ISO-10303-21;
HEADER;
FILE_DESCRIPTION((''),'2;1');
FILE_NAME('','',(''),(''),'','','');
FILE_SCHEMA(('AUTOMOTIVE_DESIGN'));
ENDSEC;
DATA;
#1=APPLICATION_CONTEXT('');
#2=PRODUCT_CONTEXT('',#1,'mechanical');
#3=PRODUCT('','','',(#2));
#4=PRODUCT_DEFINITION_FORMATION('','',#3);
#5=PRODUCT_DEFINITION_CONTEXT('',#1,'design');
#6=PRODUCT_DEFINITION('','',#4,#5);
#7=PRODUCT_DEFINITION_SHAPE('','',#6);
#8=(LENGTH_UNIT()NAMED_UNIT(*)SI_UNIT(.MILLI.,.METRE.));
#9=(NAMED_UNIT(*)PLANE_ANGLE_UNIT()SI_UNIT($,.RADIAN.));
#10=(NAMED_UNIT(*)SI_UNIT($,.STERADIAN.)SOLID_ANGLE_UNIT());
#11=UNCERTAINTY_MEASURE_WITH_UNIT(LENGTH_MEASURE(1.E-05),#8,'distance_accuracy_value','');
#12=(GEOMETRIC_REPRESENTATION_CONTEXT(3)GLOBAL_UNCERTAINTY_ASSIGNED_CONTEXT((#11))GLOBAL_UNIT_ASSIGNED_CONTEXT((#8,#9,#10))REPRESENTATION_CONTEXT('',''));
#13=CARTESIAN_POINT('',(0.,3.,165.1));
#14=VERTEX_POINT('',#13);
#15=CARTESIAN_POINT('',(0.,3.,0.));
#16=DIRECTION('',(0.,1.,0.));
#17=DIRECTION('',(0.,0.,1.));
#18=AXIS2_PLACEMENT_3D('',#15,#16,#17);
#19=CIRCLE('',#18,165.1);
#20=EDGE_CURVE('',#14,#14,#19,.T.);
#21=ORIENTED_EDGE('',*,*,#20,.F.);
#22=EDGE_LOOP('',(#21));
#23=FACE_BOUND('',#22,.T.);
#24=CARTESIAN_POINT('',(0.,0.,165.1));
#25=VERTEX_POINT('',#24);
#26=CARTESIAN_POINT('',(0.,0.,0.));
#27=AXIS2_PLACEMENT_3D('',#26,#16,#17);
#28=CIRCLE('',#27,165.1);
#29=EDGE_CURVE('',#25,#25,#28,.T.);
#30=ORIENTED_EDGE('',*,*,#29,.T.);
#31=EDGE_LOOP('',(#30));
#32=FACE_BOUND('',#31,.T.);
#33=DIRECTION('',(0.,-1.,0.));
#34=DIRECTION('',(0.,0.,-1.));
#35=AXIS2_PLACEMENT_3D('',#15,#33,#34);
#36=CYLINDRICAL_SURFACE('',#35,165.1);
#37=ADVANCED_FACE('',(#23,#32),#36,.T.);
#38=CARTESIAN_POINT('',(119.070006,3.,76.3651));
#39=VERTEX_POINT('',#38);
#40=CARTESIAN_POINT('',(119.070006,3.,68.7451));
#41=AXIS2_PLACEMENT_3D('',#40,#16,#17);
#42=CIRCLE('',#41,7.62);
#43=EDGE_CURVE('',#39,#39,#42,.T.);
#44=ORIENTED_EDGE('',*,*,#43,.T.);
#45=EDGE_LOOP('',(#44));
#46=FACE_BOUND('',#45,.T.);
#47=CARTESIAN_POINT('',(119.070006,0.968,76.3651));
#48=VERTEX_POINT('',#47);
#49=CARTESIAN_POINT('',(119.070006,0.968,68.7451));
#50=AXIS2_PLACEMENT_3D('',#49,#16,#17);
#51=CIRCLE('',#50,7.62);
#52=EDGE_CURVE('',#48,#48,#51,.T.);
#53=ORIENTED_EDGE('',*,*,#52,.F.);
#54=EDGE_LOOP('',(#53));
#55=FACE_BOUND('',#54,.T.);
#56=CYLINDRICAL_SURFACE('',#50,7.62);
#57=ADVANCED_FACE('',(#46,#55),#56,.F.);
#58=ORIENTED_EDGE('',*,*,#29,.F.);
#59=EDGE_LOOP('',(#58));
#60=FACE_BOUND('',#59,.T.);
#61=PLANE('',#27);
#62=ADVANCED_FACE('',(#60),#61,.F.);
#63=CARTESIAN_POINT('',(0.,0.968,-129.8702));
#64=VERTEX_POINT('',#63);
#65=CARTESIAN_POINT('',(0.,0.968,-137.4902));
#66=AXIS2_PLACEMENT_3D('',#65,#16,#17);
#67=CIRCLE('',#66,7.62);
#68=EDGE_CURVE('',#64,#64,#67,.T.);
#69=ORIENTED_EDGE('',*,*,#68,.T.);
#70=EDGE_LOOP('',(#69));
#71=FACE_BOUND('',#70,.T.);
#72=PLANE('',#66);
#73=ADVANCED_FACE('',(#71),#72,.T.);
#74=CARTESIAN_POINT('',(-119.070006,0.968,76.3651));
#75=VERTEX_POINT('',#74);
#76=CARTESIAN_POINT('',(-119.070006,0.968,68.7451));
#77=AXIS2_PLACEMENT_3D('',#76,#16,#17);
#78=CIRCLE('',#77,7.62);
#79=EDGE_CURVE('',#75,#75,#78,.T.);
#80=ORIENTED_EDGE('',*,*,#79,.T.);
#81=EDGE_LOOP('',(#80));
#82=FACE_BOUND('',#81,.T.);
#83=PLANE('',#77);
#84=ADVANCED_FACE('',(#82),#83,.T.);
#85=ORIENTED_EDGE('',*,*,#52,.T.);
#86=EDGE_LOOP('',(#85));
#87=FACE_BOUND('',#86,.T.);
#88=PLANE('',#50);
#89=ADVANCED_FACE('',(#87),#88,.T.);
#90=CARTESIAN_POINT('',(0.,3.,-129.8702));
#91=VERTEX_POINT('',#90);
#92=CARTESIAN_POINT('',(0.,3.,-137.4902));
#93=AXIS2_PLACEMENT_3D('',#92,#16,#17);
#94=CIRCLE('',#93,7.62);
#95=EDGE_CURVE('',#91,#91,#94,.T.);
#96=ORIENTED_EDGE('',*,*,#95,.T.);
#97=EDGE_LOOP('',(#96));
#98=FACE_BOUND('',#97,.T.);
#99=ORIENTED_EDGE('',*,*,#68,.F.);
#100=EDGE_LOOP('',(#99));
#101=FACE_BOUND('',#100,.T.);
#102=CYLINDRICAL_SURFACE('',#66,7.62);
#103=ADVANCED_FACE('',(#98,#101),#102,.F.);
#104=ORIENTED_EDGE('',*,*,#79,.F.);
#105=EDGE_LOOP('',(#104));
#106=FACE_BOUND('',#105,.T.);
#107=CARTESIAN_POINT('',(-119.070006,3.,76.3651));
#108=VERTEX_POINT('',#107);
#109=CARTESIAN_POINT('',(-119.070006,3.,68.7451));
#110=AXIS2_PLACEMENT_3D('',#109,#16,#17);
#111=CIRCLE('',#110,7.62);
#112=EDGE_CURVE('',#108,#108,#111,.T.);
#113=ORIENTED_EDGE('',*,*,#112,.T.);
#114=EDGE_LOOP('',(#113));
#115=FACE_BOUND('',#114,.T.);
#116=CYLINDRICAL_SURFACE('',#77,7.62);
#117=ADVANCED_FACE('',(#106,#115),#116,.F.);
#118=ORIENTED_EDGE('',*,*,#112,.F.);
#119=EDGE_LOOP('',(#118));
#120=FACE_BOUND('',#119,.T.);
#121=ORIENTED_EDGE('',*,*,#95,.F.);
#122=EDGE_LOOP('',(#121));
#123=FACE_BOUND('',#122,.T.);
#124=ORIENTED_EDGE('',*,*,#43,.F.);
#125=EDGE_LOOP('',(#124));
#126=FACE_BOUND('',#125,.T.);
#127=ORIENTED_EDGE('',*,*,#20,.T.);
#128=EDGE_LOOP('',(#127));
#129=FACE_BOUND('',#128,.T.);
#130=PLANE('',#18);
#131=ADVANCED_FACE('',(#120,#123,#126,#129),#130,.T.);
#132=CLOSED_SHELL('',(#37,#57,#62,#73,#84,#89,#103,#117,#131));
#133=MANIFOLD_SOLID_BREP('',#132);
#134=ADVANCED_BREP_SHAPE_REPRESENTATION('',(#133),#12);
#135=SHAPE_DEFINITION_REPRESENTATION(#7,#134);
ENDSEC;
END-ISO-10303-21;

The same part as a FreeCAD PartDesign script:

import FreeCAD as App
import Part
import Sketcher
Q = App.Units.Quantity

doc = App.newDocument("Part")
body = doc.addObject("PartDesign::Body", "Body")

sketch1 = body.newObject("Sketcher::SketchObject", "Sketch")
sketch1.AttachmentSupport = (doc.getObject("XZ_Plane"), [""])
sketch1.MapMode = "FlatFace"
sketch1.addGeometry(Part.Circle(App.Vector(0, 0, 0), App.Vector(0, 0, 1), 165.1), False)
sketch1.addConstraint([
    Sketcher.Constraint("Coincident", 0, 3, -1, 1),
    Sketcher.Constraint("Diameter", 0, Q("13 in")),
])
pad1 = body.newObject("PartDesign::Pad", "Pad")
pad1.Profile = sketch1
pad1.Length = 3
pad1.Reversed = True

sketch2 = body.newObject("Sketcher::SketchObject", "Sketch001")
sketch2.AttachmentSupport = (doc.getObject("XZ_Plane"), [""])
sketch2.MapMode = "FlatFace"
sketch2.AttachmentOffset = App.Placement(App.Vector(0, 0, -3), App.Rotation())
sketch2.addGeometry([
    Part.Circle(App.Vector(0, -137.4902, 0), App.Vector(0, 0, 1), 7.62),
    Part.Circle(App.Vector(119.070006, 68.7451, 0), App.Vector(0, 0, 1), 7.62),
    Part.Circle(App.Vector(-119.070006, 68.7451, 0), App.Vector(0, 0, 1), 7.62),
], False)
sketch2.addConstraint([
    Sketcher.Constraint("Equal", 0, 1),
    Sketcher.Constraint("Equal", 1, 2),
    Sketcher.Constraint("Symmetric", 1, 3, 2, 3, -2),
    Sketcher.Constraint("PointOnObject", 0, 3, -2),
    Sketcher.Constraint("Diameter", 0, Q("0.6 in")),
    Sketcher.Constraint("DistanceY", 0, 3, -1, 1, Q("5.413 in")),
    Sketcher.Constraint("DistanceY", -1, 1, 1, 3, Q("2.7065 in")),
    Sketcher.Constraint("DistanceX", 2, 3, 1, 3, 238.140012),
])
pocket1 = body.newObject("PartDesign::Pocket", "Pocket")
pocket1.Profile = sketch2
pocket1.Length = Q("0.08 in")
pocket1.Reversed = True

doc.recompute()
